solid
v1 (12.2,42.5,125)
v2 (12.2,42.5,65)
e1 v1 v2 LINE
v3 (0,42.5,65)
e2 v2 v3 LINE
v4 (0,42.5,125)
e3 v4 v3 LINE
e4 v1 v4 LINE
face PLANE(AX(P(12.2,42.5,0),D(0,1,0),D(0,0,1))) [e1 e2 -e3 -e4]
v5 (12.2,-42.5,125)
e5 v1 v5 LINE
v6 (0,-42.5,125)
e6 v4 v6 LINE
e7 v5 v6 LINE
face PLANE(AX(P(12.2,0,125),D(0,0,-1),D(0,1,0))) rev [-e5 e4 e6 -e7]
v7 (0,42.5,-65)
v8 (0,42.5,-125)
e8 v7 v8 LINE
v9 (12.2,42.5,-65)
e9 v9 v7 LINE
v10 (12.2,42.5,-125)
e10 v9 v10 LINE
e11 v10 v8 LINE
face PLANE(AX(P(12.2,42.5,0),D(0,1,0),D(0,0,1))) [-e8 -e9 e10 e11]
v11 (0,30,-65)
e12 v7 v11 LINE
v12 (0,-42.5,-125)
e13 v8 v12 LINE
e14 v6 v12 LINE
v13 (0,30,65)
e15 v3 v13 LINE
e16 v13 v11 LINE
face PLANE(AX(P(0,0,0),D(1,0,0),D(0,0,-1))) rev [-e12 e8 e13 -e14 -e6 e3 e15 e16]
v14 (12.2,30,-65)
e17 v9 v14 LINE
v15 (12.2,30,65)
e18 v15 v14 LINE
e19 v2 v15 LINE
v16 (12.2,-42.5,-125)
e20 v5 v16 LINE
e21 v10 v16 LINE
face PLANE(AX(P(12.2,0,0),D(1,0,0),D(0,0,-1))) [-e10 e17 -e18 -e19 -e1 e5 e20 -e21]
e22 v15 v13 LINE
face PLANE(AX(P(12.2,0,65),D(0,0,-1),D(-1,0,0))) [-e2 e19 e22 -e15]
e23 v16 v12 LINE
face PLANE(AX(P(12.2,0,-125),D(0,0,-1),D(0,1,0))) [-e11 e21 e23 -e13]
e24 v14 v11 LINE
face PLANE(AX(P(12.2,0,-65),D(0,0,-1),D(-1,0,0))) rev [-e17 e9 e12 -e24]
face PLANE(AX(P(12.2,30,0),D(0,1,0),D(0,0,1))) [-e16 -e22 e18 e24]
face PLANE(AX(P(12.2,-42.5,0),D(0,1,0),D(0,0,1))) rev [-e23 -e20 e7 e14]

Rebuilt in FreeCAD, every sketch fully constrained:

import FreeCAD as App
import Part
import Sketcher
from FreeCAD import Vector

doc = App.newDocument("Part")
params = doc.addObject("Spreadsheet::Sheet", "Params")
for row, (alias, value) in enumerate([
    ("sketch1_width", "85 mm"),
    ("sketch1_height", "60 mm"),
    ("sketch1_height2", "250 mm"),
    ("sketch1_width2", "12.5 mm"),
    ("pad1_length", "12.2 mm"),
], start=1):
    params.set(f"A{row}", alias)
    params.set(f"B{row}", "=" + value)
    params.setAlias(f"B{row}", alias)

body = doc.addObject("PartDesign::Body", "Body")

# Sketch on YZ plane
sketch1 = doc.addObject("Sketcher::SketchObject", "Sketch")
body.addObject(sketch1)
sketch1.AttachmentSupport = (doc.YZ_Plane, [""])
sketch1.MapMode = "FlatFace"
sketch1.addGeometry(Part.LineSegment(Vector(42.5, 65, 0), Vector(42.5, 125, 0)), False)
sketch1.addGeometry(Part.LineSegment(Vector(42.5, 125, 0), Vector(-42.5, 125, 0)), False)
sketch1.addGeometry(Part.LineSegment(Vector(-42.5, 125, 0), Vector(-42.5, -125, 0)), False)
sketch1.addGeometry(Part.LineSegment(Vector(-42.5, -125, 0), Vector(42.5, -125, 0)), False)
sketch1.addGeometry(Part.LineSegment(Vector(42.5, -125, 0), Vector(42.5, -65, 0)), False)
sketch1.addGeometry(Part.LineSegment(Vector(42.5, -65, 0), Vector(30, -65, 0)), False)
sketch1.addGeometry(Part.LineSegment(Vector(30, -65, 0), Vector(30, 65, 0)), False)
sketch1.addGeometry(Part.LineSegment(Vector(30, 65, 0), Vector(42.5, 65, 0)), False)
sketch1.addConstraint(Sketcher.Constraint("Coincident", 0, 2, 1, 1))
sketch1.addConstraint(Sketcher.Constraint("Coincident", 1, 2, 2, 1))
sketch1.addConstraint(Sketcher.Constraint("Coincident", 2, 2, 3, 1))
sketch1.addConstraint(Sketcher.Constraint("Coincident", 3, 2, 4, 1))
sketch1.addConstraint(Sketcher.Constraint("Coincident", 4, 2, 5, 1))
sketch1.addConstraint(Sketcher.Constraint("Coincident", 5, 2, 6, 1))
sketch1.addConstraint(Sketcher.Constraint("Coincident", 6, 2, 7, 1))
sketch1.addConstraint(Sketcher.Constraint("Coincident", 7, 2, 0, 1))
sketch1.addConstraint(Sketcher.Constraint("Vertical", 0))
sketch1.addConstraint(Sketcher.Constraint("Horizontal", 1))
sketch1.addConstraint(Sketcher.Constraint("Vertical", 2))
sketch1.addConstraint(Sketcher.Constraint("Horizontal", 3))
sketch1.addConstraint(Sketcher.Constraint("Vertical", 4))
sketch1.addConstraint(Sketcher.Constraint("Horizontal", 5))
sketch1.addConstraint(Sketcher.Constraint("Vertical", 6))
sketch1.addConstraint(Sketcher.Constraint("Horizontal", 7))
sketch1.addConstraint(Sketcher.Constraint("Symmetric", 0, 2, 2, 2, -1, 1))
sketch1.addConstraint(Sketcher.Constraint("Symmetric", 4, 2, 7, 2, -1))
sketch1.addConstraint(Sketcher.Constraint("DistanceX", 1, 2, 1, 1, 85.0))
sketch1.addConstraint(Sketcher.Constraint("DistanceY", 0, 1, 0, 2, 60.0))
sketch1.addConstraint(Sketcher.Constraint("DistanceY", 2, 2, 2, 1, 250.0))
sketch1.addConstraint(Sketcher.Constraint("DistanceX", 5, 2, 5, 1, 12.5))
sketch1.setExpression("Constraints[18]", "Params.sketch1_width")
sketch1.setExpression("Constraints[19]", "Params.sketch1_height")
sketch1.setExpression("Constraints[20]", "Params.sketch1_height2")
sketch1.setExpression("Constraints[21]", "Params.sketch1_width2")
pad1 = doc.addObject("PartDesign::Pad", "Pad")
body.addObject(pad1)
pad1.Profile = sketch1
pad1.setExpression("Length", "Params.pad1_length")

doc.recompute()
